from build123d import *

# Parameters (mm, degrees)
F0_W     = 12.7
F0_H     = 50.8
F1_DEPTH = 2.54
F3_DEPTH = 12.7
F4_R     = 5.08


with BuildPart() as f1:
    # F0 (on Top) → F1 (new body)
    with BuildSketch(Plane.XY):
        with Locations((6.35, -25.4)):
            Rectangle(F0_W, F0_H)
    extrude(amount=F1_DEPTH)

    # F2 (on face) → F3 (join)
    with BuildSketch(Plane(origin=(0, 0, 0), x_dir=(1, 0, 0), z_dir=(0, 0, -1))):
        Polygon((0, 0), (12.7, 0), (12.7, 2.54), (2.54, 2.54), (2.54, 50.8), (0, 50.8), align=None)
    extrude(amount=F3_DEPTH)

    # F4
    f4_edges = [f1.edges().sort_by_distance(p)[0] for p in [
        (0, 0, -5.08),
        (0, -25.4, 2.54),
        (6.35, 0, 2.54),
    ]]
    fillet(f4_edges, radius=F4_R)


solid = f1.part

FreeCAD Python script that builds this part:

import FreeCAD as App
import Part
import Sketcher
Q = App.Units.Quantity


def edges_at(feature, points):
    """Names of the edges that pass closest to the given points."""
    edges = feature.Shape.Edges
    near = lambda p: min(range(len(edges)), key=lambda i: edges[i].distToShape(Part.Vertex(*p))[0])
    return sorted({f"Edge{near(p) + 1}" for p in points})

doc = App.newDocument("Part")
body = doc.addObject("PartDesign::Body", "Body")

# Sketch on XY plane
sketch1 = body.newObject("Sketcher::SketchObject", "Sketch")
sketch1.AttachmentSupport = (doc.getObject("XY_Plane"), [""])
sketch1.MapMode = "FlatFace"
sketch1.addGeometry(Part.LineSegment(App.Vector(0, 0, 0), App.Vector(0, -50.8, 0)), False)
sketch1.addGeometry(Part.LineSegment(App.Vector(0, -50.8, 0), App.Vector(12.7, -50.8, 0)), False)
sketch1.addGeometry(Part.LineSegment(App.Vector(12.7, -50.8, 0), App.Vector(12.7, 0, 0)), False)
sketch1.addGeometry(Part.LineSegment(App.Vector(12.7, 0, 0), App.Vector(0, 0, 0)), False)
sketch1.addConstraint(Sketcher.Constraint("Coincident", 0, 2, 1, 1))
sketch1.addConstraint(Sketcher.Constraint("Coincident", 1, 2, 2, 1))
sketch1.addConstraint(Sketcher.Constraint("Coincident", 2, 2, 3, 1))
sketch1.addConstraint(Sketcher.Constraint("Coincident", 3, 2, 0, 1))
sketch1.addConstraint(Sketcher.Constraint("Vertical", 0))
sketch1.addConstraint(Sketcher.Constraint("Horizontal", 1))
sketch1.addConstraint(Sketcher.Constraint("Vertical", 2))
sketch1.addConstraint(Sketcher.Constraint("Horizontal", 3))
sketch1.addConstraint(Sketcher.Constraint("Coincident", 3, 2, -1, 1))
sketch1.addConstraint(Sketcher.Constraint("DistanceY", 0, 2, 0, 1, Q("2 in")))
sketch1.addConstraint(Sketcher.Constraint("DistanceX", 1, 1, 1, 2, Q("0.5 in")))
pad1 = body.newObject("PartDesign::Pad", "Pad")
pad1.Profile = sketch1
pad1.Length = Q("0.1 in")

# Sketch on XY plane
sketch2 = body.newObject("Sketcher::SketchObject", "Sketch001")
sketch2.AttachmentSupport = (doc.getObject("XY_Plane"), [""])
sketch2.MapMode = "FlatFace"
sketch2.addGeometry(Part.LineSegment(App.Vector(0, 0, 0), App.Vector(12.7, 0, 0)), False)
sketch2.addGeometry(Part.LineSegment(App.Vector(12.7, 0, 0), App.Vector(12.7, -2.54, 0)), False)
sketch2.addGeometry(Part.LineSegment(App.Vector(12.7, -2.54, 0), App.Vector(2.54, -2.54, 0)), False)
sketch2.addGeometry(Part.LineSegment(App.Vector(2.54, -2.54, 0), App.Vector(2.54, -50.8, 0)), False)
sketch2.addGeometry(Part.LineSegment(App.Vector(2.54, -50.8, 0), App.Vector(0, -50.8, 0)), False)
sketch2.addGeometry(Part.LineSegment(App.Vector(0, -50.8, 0), App.Vector(0, 0, 0)), False)
sketch2.addConstraint(Sketcher.Constraint("Coincident", 0, 2, 1, 1))
sketch2.addConstraint(Sketcher.Constraint("Coincident", 1, 2, 2, 1))
sketch2.addConstraint(Sketcher.Constraint("Coincident", 2, 2, 3, 1))
sketch2.addConstraint(Sketcher.Constraint("Coincident", 3, 2, 4, 1))
sketch2.addConstraint(Sketcher.Constraint("Coincident", 4, 2, 5, 1))
sketch2.addConstraint(Sketcher.Constraint("Coincident", 5, 2, 0, 1))
sketch2.addConstraint(Sketcher.Constraint("Horizontal", 0))
sketch2.addConstraint(Sketcher.Constraint("Vertical", 1))
sketch2.addConstraint(Sketcher.Constraint("Horizontal", 2))
sketch2.addConstraint(Sketcher.Constraint("Vertical", 3))
sketch2.addConstraint(Sketcher.Constraint("Horizontal", 4))
sketch2.addConstraint(Sketcher.Constraint("Vertical", 5))
sketch2.addConstraint(Sketcher.Constraint("Coincident", 5, 2, -1, 1))
sketch2.addConstraint(Sketcher.Constraint("Equal", 4, 1))
sketch2.addConstraint(Sketcher.Constraint("DistanceY", 5, 1, 5, 2, Q("2 in")))
sketch2.addConstraint(Sketcher.Constraint("DistanceX", 0, 1, 0, 2, Q("0.5 in")))
sketch2.addConstraint(Sketcher.Constraint("DistanceX", 2, 2, 2, 1, Q("0.4 in")))
pad2 = body.newObject("PartDesign::Pad", "Pad001")
pad2.Profile = sketch2
pad2.Length = Q("0.5 in")
pad2.Reversed = True
doc.recompute()

fillet = body.newObject("PartDesign::Fillet", "Fillet")
fillet.Base = (pad2, edges_at(pad2, [(0, 0, -5.08), (0, -25.4, 2.54), (6.35, 0, 2.54)]))
fillet.Radius = Q("0.2 in")

doc.recompute()
